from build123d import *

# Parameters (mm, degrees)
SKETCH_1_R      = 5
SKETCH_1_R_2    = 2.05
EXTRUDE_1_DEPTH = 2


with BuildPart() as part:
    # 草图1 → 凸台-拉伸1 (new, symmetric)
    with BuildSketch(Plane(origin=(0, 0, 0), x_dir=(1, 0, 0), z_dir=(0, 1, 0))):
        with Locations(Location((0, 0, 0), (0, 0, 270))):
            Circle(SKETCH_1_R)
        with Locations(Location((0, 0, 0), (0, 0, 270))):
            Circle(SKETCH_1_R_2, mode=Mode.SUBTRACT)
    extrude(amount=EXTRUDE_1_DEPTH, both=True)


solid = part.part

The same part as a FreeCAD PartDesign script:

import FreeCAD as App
import Part
import Sketcher

V = App.Vector
Q = App.Units.Quantity

doc = App.newDocument("Part")
params = doc.addObject("Spreadsheet::Sheet", "Params")
for row, (alias, value) in enumerate([
    ("sketch1_diameter", "10 mm"),
    ("sketch1_diameter2", "4.1 mm"),
    ("pad1_length", "4 mm"),
], start=1):
    params.set(f"A{row}", alias)
    params.set(f"B{row}", "=" + value)
    params.setAlias(f"B{row}", alias)

body = doc.addObject("PartDesign::Body", "Body")

# Sketch on XZ plane
sketch1 = body.newObject("Sketcher::SketchObject", "Sketch")
sketch1.AttachmentSupport = (doc.getObject("XZ_Plane"), [""])
sketch1.MapMode = "FlatFace"
sketch1.addGeometry([
    Part.Circle(V(0, 0, 0), V(0, 0, 1), 5),
    Part.Circle(V(0, 0, 0), V(0, 0, 1), 2),
], False)
sketch1.addConstraint([
    Sketcher.Constraint("Coincident", 0, 3, -1, 1),
    Sketcher.Constraint("Coincident", 1, 3, -1, 1),
    Sketcher.Constraint("Diameter", 0, Q("10 mm")),
    Sketcher.Constraint("Diameter", 1, Q("4.1 mm")),
])
sketch1.setExpression("Constraints[2]", "Params.sketch1_diameter")
sketch1.setExpression("Constraints[3]", "Params.sketch1_diameter2")
pad1 = body.newObject("PartDesign::Pad", "Pad")
pad1.Profile = sketch1
pad1.setExpression("Length", "Params.pad1_length")
pad1.Midplane = True

doc.recompute()
